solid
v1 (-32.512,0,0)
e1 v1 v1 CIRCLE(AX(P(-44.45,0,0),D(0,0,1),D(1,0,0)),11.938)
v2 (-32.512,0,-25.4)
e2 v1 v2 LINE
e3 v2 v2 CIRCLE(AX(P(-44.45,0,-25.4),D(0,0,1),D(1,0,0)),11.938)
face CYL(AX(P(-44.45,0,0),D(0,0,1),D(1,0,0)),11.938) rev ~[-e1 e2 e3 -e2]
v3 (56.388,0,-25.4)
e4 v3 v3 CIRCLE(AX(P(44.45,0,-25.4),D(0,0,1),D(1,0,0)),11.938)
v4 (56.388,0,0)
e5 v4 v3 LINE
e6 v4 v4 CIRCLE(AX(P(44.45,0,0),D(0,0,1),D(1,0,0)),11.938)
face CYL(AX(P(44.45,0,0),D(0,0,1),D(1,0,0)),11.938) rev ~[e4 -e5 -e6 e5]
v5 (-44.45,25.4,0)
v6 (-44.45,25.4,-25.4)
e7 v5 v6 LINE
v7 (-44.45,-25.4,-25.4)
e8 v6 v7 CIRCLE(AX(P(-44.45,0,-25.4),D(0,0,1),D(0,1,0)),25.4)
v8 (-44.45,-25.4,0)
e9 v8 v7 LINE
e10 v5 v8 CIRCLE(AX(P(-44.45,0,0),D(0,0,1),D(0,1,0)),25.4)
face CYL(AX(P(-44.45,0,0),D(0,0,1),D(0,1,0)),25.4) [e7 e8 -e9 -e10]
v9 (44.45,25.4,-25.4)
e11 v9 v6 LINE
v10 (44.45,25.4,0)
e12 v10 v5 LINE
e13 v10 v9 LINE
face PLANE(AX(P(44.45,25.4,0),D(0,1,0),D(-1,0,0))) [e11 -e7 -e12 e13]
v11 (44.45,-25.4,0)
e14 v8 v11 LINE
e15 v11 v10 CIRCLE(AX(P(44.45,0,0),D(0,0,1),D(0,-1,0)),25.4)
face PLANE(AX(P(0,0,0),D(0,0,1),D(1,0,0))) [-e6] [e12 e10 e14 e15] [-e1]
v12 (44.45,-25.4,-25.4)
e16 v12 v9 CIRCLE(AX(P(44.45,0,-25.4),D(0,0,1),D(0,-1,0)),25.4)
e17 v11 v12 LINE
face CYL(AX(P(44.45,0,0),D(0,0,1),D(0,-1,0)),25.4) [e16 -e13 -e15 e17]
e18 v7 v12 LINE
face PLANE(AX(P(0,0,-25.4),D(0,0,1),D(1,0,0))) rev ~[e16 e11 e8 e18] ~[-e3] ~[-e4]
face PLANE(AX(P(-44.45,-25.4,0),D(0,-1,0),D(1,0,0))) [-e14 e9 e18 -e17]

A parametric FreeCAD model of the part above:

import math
import FreeCAD as App
import Part
import Sketcher
Q = App.Units.Quantity

doc = App.newDocument("Part")
body = doc.addObject("PartDesign::Body", "Body")

# Sketch on XY plane
sketch1 = body.newObject("Sketcher::SketchObject", "Sketch")
sketch1.AttachmentSupport = (doc.getObject("XY_Plane"), [""])
sketch1.MapMode = "FlatFace"
sketch1.addGeometry([
    Part.LineSegment(App.Vector(44, 25, 0), App.Vector(-44, 25, 0)),  # 0
    Part.ArcOfCircle(Part.Circle(App.Vector(-44, 0, 0), App.Vector(0, 0, 1), 25), math.radians(90), math.radians(270)),  # 1
    Part.LineSegment(App.Vector(-44, -25, 0), App.Vector(44, -25, 0)),  # 2
    Part.ArcOfCircle(Part.Circle(App.Vector(44, 0, 0), App.Vector(0, 0, 1), 25), math.radians(-90), math.radians(90)),  # 3
    Part.Circle(App.Vector(-44, 0, 0), App.Vector(0, 0, 1), 12),  # 4
    Part.Circle(App.Vector(44, 0, 0), App.Vector(0, 0, 1), 12),  # 5
], False)
sketch1.addConstraint([
    Sketcher.Constraint("Tangent", 0, 2, 1, 1),
    Sketcher.Constraint("Tangent", 1, 2, 2, 1),
    Sketcher.Constraint("Tangent", 2, 2, 3, 1),
    Sketcher.Constraint("Tangent", 3, 2, 0, 1),
    Sketcher.Constraint("Horizontal", 0),
    Sketcher.Constraint("Horizontal", 2),
    Sketcher.Constraint("Coincident", 4, 3, 1, 3),
    Sketcher.Constraint("Coincident", 5, 3, 3, 3),
    Sketcher.Constraint("Equal", 4, 5),
    Sketcher.Constraint("Symmetric", 1, 3, 3, 3, -1, 1),
    Sketcher.Constraint("Radius", 1, Q("1 in")),
    Sketcher.Constraint("Diameter", 4, Q("0.94 in")),
    Sketcher.Constraint("DistanceX", 0, 2, 0, 1, Q("3.5 in")),
])
pad1 = body.newObject("PartDesign::Pad", "Pad")
pad1.Profile = sketch1
pad1.Length = Q("1 in")
pad1.Reversed = True

doc.recompute()
